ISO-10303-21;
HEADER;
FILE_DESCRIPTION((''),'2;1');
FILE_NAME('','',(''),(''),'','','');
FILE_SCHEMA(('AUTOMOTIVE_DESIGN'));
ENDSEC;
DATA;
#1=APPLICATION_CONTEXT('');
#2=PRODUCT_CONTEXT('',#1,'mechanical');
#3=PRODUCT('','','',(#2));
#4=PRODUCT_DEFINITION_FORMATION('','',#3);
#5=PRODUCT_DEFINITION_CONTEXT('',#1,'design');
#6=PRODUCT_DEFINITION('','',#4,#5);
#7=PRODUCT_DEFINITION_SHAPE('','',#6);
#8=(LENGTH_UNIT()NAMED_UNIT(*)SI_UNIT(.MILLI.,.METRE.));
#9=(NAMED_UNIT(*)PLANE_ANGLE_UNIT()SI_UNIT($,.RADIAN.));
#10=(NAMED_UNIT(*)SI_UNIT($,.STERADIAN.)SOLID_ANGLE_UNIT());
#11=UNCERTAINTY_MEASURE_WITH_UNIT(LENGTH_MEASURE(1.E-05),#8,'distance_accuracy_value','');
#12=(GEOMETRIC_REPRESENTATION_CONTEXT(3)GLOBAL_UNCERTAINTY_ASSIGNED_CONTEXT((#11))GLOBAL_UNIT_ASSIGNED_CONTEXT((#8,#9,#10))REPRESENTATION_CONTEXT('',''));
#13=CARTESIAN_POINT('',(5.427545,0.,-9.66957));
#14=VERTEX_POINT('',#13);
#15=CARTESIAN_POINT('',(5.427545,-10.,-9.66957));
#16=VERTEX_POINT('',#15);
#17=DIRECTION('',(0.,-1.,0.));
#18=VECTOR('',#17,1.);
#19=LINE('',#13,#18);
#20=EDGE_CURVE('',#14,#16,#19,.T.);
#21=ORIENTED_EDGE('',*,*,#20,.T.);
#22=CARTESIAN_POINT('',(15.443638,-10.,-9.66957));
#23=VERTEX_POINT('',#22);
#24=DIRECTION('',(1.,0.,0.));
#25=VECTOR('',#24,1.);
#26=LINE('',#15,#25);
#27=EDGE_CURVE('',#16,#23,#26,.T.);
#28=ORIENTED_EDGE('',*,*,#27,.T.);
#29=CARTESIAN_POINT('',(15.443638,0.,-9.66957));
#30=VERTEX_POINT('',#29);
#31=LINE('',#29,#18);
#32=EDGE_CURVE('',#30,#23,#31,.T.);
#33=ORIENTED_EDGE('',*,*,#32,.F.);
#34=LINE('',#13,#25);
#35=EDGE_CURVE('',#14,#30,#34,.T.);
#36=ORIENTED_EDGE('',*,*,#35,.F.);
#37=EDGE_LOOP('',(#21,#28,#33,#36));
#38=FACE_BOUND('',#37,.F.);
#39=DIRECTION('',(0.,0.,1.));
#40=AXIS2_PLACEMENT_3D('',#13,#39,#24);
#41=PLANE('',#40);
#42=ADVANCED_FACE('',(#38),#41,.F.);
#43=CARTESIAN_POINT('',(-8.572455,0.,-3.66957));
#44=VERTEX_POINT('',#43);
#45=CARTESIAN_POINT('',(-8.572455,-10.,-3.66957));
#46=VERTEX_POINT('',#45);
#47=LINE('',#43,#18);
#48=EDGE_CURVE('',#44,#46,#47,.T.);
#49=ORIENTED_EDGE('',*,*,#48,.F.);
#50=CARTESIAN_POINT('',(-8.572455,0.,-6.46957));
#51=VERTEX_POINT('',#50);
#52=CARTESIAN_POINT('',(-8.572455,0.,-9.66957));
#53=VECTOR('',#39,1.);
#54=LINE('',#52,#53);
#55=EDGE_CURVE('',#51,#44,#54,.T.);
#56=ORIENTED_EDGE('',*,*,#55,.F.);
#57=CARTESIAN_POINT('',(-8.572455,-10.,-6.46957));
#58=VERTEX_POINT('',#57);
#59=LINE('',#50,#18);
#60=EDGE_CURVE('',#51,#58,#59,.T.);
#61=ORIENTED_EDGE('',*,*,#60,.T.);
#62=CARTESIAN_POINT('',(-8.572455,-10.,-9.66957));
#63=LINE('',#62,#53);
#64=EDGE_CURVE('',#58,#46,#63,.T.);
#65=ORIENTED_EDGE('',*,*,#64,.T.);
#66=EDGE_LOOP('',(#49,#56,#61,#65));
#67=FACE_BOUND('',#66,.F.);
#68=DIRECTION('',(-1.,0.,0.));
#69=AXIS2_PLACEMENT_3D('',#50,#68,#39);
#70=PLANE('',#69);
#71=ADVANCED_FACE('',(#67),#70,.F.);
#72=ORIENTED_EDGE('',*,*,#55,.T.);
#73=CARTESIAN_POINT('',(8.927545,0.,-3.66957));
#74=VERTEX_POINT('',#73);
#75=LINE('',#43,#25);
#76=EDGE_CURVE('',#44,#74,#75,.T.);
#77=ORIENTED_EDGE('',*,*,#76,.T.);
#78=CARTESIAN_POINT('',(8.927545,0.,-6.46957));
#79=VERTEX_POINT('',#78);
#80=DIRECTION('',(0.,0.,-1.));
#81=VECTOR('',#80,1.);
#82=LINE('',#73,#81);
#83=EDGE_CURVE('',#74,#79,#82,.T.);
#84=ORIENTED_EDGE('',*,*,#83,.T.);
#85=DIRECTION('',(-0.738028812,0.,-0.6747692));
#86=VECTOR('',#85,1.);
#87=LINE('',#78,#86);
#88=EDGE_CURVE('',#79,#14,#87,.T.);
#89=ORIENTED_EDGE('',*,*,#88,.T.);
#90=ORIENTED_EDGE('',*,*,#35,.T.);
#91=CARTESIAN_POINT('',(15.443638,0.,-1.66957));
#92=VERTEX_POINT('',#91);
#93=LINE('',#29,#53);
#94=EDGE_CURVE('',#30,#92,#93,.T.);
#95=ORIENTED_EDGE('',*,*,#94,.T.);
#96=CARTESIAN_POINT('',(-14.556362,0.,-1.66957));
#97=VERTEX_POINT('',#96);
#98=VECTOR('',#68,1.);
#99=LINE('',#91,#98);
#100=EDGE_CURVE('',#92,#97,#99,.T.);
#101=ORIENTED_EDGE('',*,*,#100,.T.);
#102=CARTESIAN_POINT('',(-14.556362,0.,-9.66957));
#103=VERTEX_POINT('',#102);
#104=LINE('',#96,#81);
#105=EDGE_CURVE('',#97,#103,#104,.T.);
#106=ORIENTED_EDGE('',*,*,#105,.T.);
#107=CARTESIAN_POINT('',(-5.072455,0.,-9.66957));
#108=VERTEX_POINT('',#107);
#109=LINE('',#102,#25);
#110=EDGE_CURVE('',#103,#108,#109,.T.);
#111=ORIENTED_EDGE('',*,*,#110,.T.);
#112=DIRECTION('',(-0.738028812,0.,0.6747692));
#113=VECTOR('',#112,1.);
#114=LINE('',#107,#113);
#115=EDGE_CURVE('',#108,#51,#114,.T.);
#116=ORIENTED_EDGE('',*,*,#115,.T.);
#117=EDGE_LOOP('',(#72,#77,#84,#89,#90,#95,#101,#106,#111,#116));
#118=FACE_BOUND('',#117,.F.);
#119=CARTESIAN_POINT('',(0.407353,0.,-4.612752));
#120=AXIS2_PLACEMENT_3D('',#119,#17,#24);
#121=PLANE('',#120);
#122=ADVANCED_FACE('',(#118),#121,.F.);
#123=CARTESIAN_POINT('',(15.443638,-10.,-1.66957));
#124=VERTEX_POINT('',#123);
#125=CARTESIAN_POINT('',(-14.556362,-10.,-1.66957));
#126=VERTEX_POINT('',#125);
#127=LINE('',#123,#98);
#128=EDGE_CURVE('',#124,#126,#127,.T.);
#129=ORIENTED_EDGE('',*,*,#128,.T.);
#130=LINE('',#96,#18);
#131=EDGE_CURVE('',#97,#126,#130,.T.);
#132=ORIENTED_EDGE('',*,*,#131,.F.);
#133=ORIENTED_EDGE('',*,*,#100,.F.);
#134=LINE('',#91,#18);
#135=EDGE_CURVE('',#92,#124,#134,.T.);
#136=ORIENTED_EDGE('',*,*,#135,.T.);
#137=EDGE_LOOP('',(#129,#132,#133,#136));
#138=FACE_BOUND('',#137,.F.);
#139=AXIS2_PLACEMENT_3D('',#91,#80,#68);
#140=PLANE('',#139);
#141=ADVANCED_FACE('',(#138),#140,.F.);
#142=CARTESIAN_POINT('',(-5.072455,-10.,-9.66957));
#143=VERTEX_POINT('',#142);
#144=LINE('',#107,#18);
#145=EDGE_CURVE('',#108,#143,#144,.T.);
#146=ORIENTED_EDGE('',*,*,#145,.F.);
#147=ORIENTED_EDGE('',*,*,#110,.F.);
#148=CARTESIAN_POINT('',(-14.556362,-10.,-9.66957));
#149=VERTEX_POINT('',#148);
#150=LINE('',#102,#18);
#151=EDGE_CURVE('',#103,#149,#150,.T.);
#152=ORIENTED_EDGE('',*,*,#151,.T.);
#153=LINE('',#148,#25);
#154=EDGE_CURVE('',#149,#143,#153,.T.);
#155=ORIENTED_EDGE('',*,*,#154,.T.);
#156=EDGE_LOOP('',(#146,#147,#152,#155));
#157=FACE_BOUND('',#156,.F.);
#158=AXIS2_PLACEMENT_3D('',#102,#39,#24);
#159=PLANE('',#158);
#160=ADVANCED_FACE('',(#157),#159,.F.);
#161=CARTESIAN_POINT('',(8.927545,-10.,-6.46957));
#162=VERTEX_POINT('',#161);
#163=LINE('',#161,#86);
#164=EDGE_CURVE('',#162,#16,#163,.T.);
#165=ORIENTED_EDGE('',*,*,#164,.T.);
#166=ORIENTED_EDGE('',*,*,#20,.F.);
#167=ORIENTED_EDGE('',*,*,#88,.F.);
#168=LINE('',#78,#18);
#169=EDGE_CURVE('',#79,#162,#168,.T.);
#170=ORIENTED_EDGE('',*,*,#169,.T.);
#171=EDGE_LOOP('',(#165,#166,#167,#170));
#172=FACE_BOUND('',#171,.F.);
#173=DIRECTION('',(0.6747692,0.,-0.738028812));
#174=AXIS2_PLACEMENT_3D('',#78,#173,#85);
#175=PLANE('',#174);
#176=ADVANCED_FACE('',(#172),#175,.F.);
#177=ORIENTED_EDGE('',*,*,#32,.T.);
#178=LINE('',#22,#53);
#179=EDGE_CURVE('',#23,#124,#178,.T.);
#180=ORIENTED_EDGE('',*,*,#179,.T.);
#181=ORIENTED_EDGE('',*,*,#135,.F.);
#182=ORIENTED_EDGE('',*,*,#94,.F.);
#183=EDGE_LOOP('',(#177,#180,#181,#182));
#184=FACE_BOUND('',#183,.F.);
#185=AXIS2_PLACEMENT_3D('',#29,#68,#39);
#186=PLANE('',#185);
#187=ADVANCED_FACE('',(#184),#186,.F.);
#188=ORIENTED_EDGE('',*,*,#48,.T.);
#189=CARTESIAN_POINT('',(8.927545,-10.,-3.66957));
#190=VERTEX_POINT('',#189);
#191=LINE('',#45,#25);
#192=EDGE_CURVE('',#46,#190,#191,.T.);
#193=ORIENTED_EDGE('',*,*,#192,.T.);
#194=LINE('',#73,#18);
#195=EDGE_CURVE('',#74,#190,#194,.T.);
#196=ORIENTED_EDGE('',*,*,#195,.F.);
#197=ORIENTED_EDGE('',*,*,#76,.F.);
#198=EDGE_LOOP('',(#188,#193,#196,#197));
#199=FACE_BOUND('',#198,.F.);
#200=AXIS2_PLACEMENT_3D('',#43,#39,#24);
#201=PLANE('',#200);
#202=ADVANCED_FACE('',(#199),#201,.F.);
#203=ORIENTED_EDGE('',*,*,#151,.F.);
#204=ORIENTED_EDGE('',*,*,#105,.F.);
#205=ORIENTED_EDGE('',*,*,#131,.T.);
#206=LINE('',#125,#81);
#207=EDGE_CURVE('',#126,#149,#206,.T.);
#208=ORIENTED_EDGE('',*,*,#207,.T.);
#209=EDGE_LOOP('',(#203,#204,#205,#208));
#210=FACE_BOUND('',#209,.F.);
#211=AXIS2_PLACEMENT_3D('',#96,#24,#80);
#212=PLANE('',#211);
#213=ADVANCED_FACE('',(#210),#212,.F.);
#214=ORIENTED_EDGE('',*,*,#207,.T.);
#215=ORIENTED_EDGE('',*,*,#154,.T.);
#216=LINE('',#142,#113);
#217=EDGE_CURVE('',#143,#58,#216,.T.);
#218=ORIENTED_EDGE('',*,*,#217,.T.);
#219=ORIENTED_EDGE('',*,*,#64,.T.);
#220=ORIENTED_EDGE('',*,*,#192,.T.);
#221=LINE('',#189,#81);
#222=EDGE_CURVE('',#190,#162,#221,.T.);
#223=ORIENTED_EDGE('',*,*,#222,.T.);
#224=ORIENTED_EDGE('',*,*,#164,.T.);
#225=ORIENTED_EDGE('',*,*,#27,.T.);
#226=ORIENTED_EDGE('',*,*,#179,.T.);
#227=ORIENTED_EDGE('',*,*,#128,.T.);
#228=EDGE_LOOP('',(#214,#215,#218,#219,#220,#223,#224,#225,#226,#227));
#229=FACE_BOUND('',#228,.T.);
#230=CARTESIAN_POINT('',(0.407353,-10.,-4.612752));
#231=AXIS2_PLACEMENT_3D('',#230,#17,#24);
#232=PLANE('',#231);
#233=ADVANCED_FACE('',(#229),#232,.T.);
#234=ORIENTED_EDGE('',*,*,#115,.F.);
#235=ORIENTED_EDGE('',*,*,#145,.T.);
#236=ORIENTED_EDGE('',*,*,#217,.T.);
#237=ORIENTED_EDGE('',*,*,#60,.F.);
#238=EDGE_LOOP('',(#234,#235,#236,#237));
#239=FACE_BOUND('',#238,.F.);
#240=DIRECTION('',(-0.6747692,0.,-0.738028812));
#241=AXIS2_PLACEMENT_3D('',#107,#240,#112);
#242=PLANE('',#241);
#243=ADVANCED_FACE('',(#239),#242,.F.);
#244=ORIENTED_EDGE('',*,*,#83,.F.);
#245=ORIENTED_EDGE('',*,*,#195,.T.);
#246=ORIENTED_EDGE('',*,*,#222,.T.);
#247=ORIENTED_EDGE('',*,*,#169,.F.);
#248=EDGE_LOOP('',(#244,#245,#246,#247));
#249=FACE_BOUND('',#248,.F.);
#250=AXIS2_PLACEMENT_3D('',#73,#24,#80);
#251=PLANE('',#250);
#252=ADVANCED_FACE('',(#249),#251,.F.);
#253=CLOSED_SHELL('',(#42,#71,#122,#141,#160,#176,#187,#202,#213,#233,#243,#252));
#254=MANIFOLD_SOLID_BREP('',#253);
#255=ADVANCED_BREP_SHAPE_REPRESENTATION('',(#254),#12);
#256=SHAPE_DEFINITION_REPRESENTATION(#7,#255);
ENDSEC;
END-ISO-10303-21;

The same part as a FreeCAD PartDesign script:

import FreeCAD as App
import Part
import Sketcher
from FreeCAD import Vector


def add_polygon(sketch, points):
    """Adds a closed chain of lines whose ends are joined by coincident constraints."""
    first, n = sketch.GeometryCount, len(points)
    for a, b in zip(points, points[1:] + points[:1]):
        sketch.addGeometry(Part.LineSegment(App.Vector(*a, 0), App.Vector(*b, 0)), False)
    for i in range(n):
        sketch.addConstraint(Sketcher.Constraint("Coincident", first + i, 2, first + (i + 1) % n, 1))

doc = App.newDocument("Part")
body = doc.addObject("PartDesign::Body", "Body")

sketch1 = body.newObject("Sketcher::SketchObject", "Sketch")
sketch1.AttachmentSupport = (doc.getObject("XZ_Plane"), [""])
sketch1.MapMode = "FlatFace"
add_polygon(sketch1, [(-14.556362, -1.66957), (-14.556362, -9.66957), (-5.072455, -9.66957), (-8.572455, -6.46957), (-8.572455, -3.66957), (8.927545, -3.66957), (8.927545, -6.46957), (5.427545, -9.66957), (15.443638, -9.66957), (15.443638, -1.66957)])
sketch1.addConstraint([
    Sketcher.Constraint("Vertical", 0),
    Sketcher.Constraint("Horizontal", 1),
    Sketcher.Constraint("Vertical", 3),
    Sketcher.Constraint("Horizontal", 4),
    Sketcher.Constraint("Vertical", 5),
    Sketcher.Constraint("Horizontal", 7),
    Sketcher.Constraint("Vertical", 8),
    Sketcher.Constraint("Horizontal", 9),
    Sketcher.Constraint("Horizontal", 2, 2, 5, 2),
    Sketcher.Constraint("Horizontal", 1, 2, 6, 2),
    Sketcher.Constraint("Equal", 2, 6),
    Sketcher.Constraint("DistanceX", 9, 2, 9, 1, 30.0),
    Sketcher.Constraint("DistanceY", 0, 2, 0, 1, 8.0),
    Sketcher.Constraint("DistanceX", 4, 1, 4, 2, 17.5),
    Sketcher.Constraint("DistanceY", 3, 1, 3, 2, 2.8),
    Sketcher.Constraint("DistanceY", 1, 2, 3, 2, 6.0),
    Sketcher.Constraint("DistanceX", 1, 2, 4, 2, 14.0),
    Sketcher.Constraint("DistanceX", 1, 1, 1, 2, 9.483907),
    Sketcher.Constraint("DistanceY", 0, 2, -1, 1, 9.66957),
    Sketcher.Constraint("DistanceX", 0, 2, -1, 1, 14.556362),
])
pad1 = body.newObject("PartDesign::Pad", "Pad")
pad1.Profile = sketch1
pad1.Length = 10

doc.recompute()
